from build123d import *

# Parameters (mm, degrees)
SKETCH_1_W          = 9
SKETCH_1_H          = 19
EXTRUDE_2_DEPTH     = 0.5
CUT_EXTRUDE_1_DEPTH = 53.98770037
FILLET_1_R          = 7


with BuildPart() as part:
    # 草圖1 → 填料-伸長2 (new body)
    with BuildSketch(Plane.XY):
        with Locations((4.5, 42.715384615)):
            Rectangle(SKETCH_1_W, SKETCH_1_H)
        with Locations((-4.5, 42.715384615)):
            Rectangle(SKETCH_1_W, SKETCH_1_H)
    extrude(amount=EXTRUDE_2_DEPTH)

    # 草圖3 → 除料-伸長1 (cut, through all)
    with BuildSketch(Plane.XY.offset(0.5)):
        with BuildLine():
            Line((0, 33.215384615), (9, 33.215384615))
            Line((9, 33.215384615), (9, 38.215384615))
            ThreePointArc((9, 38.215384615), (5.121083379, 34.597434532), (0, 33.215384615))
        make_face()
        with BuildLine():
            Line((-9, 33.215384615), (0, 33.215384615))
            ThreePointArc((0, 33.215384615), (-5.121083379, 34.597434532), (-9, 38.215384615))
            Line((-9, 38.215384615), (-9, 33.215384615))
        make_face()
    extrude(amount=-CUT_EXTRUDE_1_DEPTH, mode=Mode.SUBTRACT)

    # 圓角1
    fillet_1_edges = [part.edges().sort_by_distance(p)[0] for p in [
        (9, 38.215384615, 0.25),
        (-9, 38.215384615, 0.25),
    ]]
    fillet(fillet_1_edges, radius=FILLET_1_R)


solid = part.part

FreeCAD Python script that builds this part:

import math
import FreeCAD as App
import Part
import Sketcher


def edges_at(feature, points):
    """Names of the edges that pass closest to the given points."""
    edges = feature.Shape.Edges
    near = lambda p: min(range(len(edges)), key=lambda i: edges[i].distToShape(Part.Vertex(*p))[0])
    return sorted({f"Edge{near(p) + 1}" for p in points})

doc = App.newDocument("Part")
body = doc.addObject("PartDesign::Body", "Body")

# Sketch on XY plane
sketch1 = body.newObject("Sketcher::SketchObject", "Sketch")
sketch1.AttachmentSupport = (doc.getObject("XY_Plane"), [""])
sketch1.MapMode = "FlatFace"
sketch1.addGeometry(Part.LineSegment(App.Vector(9, 33, 0), App.Vector(9, 52, 0)), False)
sketch1.addGeometry(Part.LineSegment(App.Vector(9, 52, 0), App.Vector(-9, 52, 0)), False)
sketch1.addGeometry(Part.LineSegment(App.Vector(-9, 52, 0), App.Vector(-9, 33, 0)), False)
sketch1.addGeometry(Part.LineSegment(App.Vector(-9, 33, 0), App.Vector(9, 33, 0)), False)
sketch1.addConstraint(Sketcher.Constraint("Coincident", 0, 2, 1, 1))
sketch1.addConstraint(Sketcher.Constraint("Coincident", 1, 2, 2, 1))
sketch1.addConstraint(Sketcher.Constraint("Coincident", 2, 2, 3, 1))
sketch1.addConstraint(Sketcher.Constraint("Coincident", 3, 2, 0, 1))
sketch1.addConstraint(Sketcher.Constraint("Vertical", 0))
sketch1.addConstraint(Sketcher.Constraint("Horizontal", 1))
sketch1.addConstraint(Sketcher.Constraint("Vertical", 2))
sketch1.addConstraint(Sketcher.Constraint("Horizontal", 3))
sketch1.addConstraint(Sketcher.Constraint("DistanceX", 1, 2, 1, 1, 18.0))
sketch1.addConstraint(Sketcher.Constraint("DistanceY", 0, 1, 0, 2, 19.0))
sketch1.addConstraint(Sketcher.Constraint("DistanceX", -1, 1, 0, 2, 9.0))
sketch1.addConstraint(Sketcher.Constraint("DistanceY", -1, 1, 0, 2, 52.215385))
pad1 = body.newObject("PartDesign::Pad", "Pad")
pad1.Profile = sketch1
pad1.Length = 0.5

# Sketch on XY plane
sketch2 = body.newObject("Sketcher::SketchObject", "Sketch001")
sketch2.AttachmentSupport = (doc.getObject("XY_Plane"), [""])
sketch2.MapMode = "FlatFace"
sketch2.AttachmentOffset = App.Placement(App.Vector(0, 0, 0.5), App.Rotation())
sketch2.addGeometry(Part.LineSegment(App.Vector(0, 33.215385, 0), App.Vector(9, 33.215385, 0)), False)
sketch2.addGeometry(Part.LineSegment(App.Vector(9, 33.215385, 0), App.Vector(9, 38.215385, 0)), False)
sketch2.addGeometry(Part.ArcOfCircle(Part.Circle(App.Vector(-0.220989, 44.213165, 0), App.Vector(0, 0, 1), 11), math.radians(-88.848856), math.radians(-33.041936)), False)
sketch2.addGeometry(Part.LineSegment(App.Vector(-9, 33.215385, 0), App.Vector(0, 33.215385, 0)), False)
sketch2.addGeometry(Part.ArcOfCircle(Part.Circle(App.Vector(0.220989, 44.213165, 0), App.Vector(0, 0, 1), 11), math.radians(-146.958064), math.radians(-91.151144)), False)
sketch2.addGeometry(Part.LineSegment(App.Vector(-9, 38.215385, 0), App.Vector(-9, 33.215385, 0)), False)
sketch2.addConstraint(Sketcher.Constraint("Coincident", 0, 2, 1, 1))
sketch2.addConstraint(Sketcher.Constraint("Coincident", 1, 2, 2, 2))
sketch2.addConstraint(Sketcher.Constraint("Coincident", 2, 1, 0, 1))
sketch2.addConstraint(Sketcher.Constraint("Coincident", 3, 2, 4, 2))
sketch2.addConstraint(Sketcher.Constraint("Coincident", 4, 1, 5, 1))
sketch2.addConstraint(Sketcher.Constraint("Coincident", 5, 2, 3, 1))
sketch2.addConstraint(Sketcher.Constraint("Horizontal", 0))
sketch2.addConstraint(Sketcher.Constraint("Vertical", 1))
sketch2.addConstraint(Sketcher.Constraint("Horizontal", 3))
sketch2.addConstraint(Sketcher.Constraint("Vertical", 5))
sketch2.addConstraint(Sketcher.Constraint("Coincident", 3, 2, 2, 1))
sketch2.addConstraint(Sketcher.Constraint("Equal", 2, 4))
sketch2.addConstraint(Sketcher.Constraint("Symmetric", 2, 3, 4, 3, -2))
sketch2.addConstraint(Sketcher.Constraint("Horizontal", 1, 2, 4, 1))
sketch2.addConstraint(Sketcher.Constraint("Radius", 2, 11.0))
sketch2.addConstraint(Sketcher.Constraint("DistanceX", 0, 1, 0, 2, 9.0))
sketch2.addConstraint(Sketcher.Constraint("DistanceY", 1, 1, 1, 2, 5.0))
sketch2.addConstraint(Sketcher.Constraint("DistanceY", -1, 1, 2, 3, 44.213165))
pocket1 = body.newObject("PartDesign::Pocket", "Pocket")
pocket1.Profile = sketch2
pocket1.Type = "ThroughAll"
doc.recompute()

fillet = body.newObject("PartDesign::Fillet", "Fillet")
fillet.Base = (pocket1, edges_at(pocket1, [(9, 38.215, 0.25), (-9, 38.215, 0.25)]))
fillet.Radius = 7

doc.recompute()
